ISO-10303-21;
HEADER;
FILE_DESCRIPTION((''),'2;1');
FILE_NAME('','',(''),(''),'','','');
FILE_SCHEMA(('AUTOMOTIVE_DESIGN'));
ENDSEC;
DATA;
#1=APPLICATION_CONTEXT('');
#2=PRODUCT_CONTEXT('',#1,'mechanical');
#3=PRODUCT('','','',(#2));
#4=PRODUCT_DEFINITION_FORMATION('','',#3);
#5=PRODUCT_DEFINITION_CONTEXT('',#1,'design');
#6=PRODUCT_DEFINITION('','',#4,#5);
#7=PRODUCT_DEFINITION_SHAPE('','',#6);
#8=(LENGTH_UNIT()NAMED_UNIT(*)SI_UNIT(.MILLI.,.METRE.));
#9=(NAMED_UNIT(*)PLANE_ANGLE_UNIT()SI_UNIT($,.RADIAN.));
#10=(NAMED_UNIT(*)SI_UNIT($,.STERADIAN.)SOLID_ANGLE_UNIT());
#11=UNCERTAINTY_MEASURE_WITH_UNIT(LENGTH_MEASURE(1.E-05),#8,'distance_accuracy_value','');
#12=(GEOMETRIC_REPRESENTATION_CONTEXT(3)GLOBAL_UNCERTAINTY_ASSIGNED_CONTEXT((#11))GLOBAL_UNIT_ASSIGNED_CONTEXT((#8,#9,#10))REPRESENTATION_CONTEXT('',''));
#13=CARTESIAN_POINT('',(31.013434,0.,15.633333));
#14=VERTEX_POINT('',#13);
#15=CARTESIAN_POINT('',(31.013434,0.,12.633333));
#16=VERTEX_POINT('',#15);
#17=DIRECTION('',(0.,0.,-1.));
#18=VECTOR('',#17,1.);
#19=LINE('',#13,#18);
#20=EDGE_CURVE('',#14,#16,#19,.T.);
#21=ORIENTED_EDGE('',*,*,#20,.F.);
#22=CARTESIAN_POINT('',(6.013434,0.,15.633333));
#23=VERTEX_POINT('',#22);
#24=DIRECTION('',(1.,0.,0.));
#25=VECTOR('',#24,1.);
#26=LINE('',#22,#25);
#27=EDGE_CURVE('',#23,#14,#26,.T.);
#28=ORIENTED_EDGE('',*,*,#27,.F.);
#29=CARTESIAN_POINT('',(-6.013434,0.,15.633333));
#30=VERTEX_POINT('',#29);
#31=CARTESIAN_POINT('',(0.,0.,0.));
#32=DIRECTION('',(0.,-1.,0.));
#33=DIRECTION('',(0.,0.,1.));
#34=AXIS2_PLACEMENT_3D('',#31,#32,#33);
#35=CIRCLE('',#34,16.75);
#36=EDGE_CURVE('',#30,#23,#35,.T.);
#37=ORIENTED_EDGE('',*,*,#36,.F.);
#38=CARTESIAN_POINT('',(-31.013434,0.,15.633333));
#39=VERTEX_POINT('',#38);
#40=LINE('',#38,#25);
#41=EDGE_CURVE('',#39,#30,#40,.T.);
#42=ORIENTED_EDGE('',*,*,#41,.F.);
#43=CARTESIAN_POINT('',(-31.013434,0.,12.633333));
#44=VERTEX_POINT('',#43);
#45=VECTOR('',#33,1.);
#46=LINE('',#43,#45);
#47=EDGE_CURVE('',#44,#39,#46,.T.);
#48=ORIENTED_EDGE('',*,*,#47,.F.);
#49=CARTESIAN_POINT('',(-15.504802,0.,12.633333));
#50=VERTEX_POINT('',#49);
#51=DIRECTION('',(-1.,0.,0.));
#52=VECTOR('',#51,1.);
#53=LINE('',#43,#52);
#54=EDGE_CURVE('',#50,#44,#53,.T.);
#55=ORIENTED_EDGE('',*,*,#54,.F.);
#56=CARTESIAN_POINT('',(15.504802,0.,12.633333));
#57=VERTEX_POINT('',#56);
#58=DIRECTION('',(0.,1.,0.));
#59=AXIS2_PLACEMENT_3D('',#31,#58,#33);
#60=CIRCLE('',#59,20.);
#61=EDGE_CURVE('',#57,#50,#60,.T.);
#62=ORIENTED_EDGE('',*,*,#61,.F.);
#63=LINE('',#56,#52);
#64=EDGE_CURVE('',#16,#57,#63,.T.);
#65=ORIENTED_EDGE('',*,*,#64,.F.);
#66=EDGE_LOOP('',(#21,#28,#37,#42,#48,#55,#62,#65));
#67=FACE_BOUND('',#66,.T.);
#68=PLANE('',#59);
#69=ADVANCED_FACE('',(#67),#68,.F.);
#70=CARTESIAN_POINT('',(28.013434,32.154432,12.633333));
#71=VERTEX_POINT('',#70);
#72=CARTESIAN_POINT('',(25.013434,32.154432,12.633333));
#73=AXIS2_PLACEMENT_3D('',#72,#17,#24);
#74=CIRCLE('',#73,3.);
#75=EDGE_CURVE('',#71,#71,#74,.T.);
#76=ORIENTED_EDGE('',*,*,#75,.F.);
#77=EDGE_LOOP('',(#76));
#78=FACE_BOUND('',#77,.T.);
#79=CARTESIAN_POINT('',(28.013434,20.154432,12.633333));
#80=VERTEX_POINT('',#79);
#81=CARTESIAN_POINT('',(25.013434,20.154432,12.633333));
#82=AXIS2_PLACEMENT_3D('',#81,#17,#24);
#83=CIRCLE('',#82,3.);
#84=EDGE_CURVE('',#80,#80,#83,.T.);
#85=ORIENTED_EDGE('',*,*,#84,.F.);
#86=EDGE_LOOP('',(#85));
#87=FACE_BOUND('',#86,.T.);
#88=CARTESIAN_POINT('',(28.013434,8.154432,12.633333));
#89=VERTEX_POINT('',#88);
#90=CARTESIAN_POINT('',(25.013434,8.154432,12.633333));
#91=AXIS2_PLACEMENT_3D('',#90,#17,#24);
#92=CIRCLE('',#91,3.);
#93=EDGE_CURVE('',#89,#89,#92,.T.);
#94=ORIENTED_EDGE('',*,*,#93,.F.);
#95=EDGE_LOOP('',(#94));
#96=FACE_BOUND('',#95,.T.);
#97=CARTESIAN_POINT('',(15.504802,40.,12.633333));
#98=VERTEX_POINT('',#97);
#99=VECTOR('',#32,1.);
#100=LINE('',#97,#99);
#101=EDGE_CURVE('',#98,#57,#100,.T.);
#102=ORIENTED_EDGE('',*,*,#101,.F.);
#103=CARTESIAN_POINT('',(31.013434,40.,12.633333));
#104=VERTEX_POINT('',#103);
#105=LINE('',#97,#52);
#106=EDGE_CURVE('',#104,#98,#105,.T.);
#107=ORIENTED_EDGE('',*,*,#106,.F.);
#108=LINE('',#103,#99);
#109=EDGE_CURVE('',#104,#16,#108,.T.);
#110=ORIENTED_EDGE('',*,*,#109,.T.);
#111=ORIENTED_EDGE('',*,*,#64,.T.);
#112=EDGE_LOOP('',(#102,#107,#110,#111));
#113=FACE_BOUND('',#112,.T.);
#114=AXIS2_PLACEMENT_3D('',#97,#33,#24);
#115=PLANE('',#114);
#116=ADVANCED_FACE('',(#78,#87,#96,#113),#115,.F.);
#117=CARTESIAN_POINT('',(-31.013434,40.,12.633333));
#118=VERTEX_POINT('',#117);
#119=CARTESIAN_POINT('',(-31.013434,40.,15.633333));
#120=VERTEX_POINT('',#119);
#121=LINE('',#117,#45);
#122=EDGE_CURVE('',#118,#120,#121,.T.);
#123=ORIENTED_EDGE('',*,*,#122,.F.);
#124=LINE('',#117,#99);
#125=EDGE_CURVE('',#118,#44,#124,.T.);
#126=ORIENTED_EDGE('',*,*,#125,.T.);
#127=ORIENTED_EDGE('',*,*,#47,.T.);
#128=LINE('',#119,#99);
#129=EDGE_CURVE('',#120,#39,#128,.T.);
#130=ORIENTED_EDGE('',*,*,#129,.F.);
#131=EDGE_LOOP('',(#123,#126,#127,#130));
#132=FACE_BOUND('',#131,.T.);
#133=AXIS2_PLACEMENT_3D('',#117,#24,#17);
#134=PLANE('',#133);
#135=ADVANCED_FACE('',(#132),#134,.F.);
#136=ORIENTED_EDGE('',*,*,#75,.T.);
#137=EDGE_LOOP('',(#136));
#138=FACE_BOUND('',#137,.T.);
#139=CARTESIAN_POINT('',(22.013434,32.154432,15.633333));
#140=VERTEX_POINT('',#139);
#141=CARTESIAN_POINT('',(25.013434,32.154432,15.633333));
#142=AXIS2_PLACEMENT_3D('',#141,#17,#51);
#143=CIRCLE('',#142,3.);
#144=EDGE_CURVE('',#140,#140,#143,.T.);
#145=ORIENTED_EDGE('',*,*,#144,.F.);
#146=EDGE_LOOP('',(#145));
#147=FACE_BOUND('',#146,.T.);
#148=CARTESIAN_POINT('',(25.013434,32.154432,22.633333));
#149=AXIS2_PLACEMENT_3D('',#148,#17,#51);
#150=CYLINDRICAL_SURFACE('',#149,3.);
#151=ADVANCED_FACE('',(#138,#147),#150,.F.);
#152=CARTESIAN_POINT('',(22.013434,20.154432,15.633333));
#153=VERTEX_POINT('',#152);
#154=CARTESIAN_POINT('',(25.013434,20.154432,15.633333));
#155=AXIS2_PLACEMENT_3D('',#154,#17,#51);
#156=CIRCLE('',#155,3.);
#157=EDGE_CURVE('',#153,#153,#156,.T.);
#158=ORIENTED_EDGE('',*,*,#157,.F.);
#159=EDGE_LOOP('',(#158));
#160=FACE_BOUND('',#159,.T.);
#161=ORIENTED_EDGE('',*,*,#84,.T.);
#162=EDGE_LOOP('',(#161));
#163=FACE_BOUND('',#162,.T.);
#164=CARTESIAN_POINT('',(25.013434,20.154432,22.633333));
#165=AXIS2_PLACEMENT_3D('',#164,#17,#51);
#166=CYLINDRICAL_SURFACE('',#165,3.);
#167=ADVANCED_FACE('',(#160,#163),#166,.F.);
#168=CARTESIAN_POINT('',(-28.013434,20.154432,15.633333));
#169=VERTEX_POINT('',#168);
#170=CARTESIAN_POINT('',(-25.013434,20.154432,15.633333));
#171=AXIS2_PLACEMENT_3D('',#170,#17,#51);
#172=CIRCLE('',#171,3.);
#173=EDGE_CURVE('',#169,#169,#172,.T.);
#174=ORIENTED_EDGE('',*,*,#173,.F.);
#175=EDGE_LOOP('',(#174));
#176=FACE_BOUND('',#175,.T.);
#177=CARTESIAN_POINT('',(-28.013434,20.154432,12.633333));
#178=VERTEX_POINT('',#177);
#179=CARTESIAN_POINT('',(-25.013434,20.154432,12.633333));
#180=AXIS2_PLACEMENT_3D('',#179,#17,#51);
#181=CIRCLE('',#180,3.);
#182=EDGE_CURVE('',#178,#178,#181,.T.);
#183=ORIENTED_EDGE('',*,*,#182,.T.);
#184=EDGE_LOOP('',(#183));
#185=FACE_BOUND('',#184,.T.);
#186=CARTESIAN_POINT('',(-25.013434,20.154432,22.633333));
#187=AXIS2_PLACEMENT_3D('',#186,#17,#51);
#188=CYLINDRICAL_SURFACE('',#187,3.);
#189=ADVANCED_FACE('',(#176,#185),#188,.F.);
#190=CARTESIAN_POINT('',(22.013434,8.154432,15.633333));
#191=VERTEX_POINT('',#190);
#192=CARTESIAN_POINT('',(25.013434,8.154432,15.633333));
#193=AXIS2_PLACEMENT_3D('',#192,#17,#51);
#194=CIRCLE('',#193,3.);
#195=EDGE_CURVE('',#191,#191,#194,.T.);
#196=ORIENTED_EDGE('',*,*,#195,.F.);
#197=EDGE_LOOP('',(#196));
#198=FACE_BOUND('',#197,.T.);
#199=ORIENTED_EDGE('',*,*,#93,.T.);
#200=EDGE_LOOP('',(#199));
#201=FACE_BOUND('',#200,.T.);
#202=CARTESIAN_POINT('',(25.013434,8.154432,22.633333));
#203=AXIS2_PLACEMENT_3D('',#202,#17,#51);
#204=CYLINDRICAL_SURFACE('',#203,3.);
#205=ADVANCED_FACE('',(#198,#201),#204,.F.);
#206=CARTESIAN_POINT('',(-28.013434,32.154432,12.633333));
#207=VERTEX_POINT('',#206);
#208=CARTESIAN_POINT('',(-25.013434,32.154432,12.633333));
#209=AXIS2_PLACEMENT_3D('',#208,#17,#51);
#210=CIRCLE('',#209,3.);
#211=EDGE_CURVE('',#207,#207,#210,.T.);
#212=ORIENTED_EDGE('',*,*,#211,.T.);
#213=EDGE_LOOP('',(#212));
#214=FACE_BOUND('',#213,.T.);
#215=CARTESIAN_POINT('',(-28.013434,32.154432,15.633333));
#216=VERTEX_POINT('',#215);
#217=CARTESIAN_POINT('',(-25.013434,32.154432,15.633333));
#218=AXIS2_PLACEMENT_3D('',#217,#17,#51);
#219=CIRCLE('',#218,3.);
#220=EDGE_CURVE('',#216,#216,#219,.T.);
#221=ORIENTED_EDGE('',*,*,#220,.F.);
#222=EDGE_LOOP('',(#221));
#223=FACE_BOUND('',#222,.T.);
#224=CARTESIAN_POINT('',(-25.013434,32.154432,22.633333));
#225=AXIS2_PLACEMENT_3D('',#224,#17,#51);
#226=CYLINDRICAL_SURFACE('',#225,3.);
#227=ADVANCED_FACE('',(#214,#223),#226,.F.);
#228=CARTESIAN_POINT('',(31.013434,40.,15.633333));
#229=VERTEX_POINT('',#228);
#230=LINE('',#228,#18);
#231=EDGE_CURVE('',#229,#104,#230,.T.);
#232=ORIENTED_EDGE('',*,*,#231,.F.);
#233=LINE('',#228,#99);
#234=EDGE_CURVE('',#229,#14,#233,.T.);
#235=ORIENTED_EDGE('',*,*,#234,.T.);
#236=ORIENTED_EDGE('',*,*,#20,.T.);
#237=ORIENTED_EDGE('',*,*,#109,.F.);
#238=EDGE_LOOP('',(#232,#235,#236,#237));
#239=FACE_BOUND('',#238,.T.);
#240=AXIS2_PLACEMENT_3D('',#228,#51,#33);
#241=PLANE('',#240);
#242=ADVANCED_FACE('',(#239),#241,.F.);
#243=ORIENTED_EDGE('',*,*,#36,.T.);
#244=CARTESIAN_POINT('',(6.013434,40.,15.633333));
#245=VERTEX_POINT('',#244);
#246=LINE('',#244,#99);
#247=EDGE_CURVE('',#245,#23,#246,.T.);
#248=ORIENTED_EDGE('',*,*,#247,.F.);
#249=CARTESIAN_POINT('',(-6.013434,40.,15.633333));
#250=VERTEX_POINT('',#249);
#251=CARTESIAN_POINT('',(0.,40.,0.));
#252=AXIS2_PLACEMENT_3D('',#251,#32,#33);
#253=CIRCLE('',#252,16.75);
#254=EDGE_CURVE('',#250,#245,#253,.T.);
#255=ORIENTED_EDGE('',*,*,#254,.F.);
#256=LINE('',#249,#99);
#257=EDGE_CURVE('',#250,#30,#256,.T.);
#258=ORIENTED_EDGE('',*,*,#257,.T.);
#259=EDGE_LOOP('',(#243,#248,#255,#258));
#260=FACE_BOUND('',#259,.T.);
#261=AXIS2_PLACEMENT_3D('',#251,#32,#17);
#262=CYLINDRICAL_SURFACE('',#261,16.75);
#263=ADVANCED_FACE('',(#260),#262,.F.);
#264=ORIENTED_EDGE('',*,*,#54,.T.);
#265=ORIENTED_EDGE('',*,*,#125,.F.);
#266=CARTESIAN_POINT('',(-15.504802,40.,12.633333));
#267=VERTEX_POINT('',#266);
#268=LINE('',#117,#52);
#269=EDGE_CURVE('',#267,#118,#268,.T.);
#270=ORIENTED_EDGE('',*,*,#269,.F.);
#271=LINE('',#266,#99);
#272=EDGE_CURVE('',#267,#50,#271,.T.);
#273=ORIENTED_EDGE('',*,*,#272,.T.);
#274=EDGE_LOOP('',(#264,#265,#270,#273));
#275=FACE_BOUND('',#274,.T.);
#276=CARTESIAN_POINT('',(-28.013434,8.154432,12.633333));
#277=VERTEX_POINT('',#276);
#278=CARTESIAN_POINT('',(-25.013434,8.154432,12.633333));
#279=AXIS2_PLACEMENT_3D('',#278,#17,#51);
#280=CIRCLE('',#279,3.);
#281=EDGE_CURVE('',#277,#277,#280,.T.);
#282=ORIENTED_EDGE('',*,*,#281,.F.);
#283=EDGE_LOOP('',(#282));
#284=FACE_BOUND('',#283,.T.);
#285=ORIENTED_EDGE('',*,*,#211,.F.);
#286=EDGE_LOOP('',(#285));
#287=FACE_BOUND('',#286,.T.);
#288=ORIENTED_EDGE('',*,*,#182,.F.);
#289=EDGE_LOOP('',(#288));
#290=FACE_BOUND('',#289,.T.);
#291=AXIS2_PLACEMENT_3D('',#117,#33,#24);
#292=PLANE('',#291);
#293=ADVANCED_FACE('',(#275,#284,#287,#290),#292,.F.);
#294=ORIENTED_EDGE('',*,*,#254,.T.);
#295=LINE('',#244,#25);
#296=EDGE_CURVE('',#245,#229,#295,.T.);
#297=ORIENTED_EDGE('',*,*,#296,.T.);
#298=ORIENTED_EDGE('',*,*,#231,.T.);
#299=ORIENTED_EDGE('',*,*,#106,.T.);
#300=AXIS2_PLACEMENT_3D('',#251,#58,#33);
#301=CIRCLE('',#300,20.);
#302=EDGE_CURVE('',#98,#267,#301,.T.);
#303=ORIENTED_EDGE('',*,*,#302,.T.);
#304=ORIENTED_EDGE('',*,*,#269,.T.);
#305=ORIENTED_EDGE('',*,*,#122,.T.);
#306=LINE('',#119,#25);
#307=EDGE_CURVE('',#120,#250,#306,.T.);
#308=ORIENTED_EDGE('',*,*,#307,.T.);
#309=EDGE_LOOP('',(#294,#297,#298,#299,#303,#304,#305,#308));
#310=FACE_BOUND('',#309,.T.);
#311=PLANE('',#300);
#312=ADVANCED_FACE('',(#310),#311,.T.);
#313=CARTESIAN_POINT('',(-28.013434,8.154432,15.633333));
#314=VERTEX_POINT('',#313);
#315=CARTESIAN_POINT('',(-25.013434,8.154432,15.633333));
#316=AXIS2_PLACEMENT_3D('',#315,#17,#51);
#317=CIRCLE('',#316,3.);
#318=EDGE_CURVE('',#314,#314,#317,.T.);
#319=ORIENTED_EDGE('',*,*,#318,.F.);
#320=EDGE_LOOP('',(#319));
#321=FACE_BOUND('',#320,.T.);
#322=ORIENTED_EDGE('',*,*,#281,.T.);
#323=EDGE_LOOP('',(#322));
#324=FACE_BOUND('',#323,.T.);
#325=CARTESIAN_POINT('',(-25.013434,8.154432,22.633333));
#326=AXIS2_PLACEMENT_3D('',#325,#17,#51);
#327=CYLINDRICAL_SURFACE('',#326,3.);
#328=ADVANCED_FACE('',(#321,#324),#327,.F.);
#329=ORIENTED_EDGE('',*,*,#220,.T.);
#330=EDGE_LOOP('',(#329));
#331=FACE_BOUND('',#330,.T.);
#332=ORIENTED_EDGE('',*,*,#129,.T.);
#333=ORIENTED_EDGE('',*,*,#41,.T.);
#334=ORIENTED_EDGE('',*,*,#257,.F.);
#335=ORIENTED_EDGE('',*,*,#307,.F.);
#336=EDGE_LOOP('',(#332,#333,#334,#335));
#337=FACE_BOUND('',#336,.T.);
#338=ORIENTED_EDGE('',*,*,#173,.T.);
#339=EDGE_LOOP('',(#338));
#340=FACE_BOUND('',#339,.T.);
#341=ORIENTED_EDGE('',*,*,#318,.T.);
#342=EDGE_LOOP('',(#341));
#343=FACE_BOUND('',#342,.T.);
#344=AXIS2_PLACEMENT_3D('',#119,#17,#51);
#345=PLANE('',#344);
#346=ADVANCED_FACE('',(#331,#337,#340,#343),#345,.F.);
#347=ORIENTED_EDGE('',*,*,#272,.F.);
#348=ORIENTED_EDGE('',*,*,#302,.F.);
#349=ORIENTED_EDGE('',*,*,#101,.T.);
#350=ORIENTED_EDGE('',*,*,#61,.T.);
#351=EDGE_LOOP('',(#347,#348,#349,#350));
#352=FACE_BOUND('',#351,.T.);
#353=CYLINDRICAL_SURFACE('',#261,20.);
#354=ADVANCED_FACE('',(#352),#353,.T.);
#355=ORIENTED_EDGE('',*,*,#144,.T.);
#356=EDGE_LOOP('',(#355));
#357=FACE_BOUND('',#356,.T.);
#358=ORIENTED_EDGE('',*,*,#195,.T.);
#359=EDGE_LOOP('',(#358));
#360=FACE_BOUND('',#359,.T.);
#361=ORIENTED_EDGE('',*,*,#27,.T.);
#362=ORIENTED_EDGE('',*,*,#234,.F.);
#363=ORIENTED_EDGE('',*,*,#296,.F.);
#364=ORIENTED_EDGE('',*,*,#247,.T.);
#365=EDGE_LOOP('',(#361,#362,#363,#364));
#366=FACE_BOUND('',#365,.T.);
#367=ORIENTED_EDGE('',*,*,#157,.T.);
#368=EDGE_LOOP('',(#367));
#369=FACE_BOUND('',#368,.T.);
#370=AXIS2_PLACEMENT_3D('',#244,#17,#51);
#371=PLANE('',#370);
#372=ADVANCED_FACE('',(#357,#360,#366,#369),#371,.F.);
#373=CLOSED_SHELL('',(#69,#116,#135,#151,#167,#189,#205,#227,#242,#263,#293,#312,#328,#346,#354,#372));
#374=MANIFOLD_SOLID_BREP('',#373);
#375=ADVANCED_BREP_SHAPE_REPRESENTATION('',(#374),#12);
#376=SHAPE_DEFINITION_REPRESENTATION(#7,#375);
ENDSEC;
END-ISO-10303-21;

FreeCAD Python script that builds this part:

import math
import FreeCAD as App
import Part
import Sketcher

V = App.Vector
Q = App.Units.Quantity

doc = App.newDocument("Part")
body = doc.addObject("PartDesign::Body", "Body")

# Sketch on XZ plane
sketch1 = body.newObject("Sketcher::SketchObject", "Sketch")
sketch1.AttachmentSupport = (doc.getObject("XZ_Plane"), [""])
sketch1.MapMode = "FlatFace"
sketch1.addGeometry([
    Part.LineSegment(V(6, 15.6, 0), V(31, 15.6, 0)),  # 0
    Part.LineSegment(V(31, 15.6, 0), V(31, 12.6, 0)),  # 1
    Part.LineSegment(V(31, 12.6, 0), V(15.5, 12.6, 0)),  # 2
    Part.ArcOfCircle(Part.Circle(V(0, 0, 0), V(0, 0, 1), 20), math.radians(141), math.radians(399)),  # 3
    Part.LineSegment(V(-15.5, 12.6, 0), V(-31, 12.6, 0)),  # 4
    Part.LineSegment(V(-31, 12.6, 0), V(-31, 15.6, 0)),  # 5
    Part.LineSegment(V(-31, 15.6, 0), V(-6, 15.6, 0)),  # 6
    Part.ArcOfCircle(Part.Circle(V(0, 0, 0), V(0, 0, 1), 16.8), math.radians(111), math.radians(429)),  # 7
], False)
sketch1.addConstraint([
    Sketcher.Constraint("Coincident", 0, 2, 1, 1),
    Sketcher.Constraint("Coincident", 1, 2, 2, 1),
    Sketcher.Constraint("Coincident", 2, 2, 3, 2),
    Sketcher.Constraint("Coincident", 3, 1, 4, 1),
    Sketcher.Constraint("Coincident", 4, 2, 5, 1),
    Sketcher.Constraint("Coincident", 5, 2, 6, 1),
    Sketcher.Constraint("Coincident", 6, 2, 7, 1),
    Sketcher.Constraint("Coincident", 7, 2, 0, 1),
    Sketcher.Constraint("Horizontal", 0),
    Sketcher.Constraint("Vertical", 1),
    Sketcher.Constraint("Horizontal", 2),
    Sketcher.Constraint("Horizontal", 4),
    Sketcher.Constraint("Vertical", 5),
    Sketcher.Constraint("Horizontal", 6),
    Sketcher.Constraint("Coincident", 3, 3, -1, 1),
    Sketcher.Constraint("Coincident", 7, 3, -1, 1),
    Sketcher.Constraint("Symmetric", 1, 2, 4, 2, -2),
    Sketcher.Constraint("Horizontal", 0, 2, 5, 2),
    Sketcher.Constraint("Radius", 3, Q("20 mm")),
    Sketcher.Constraint("DistanceX", 0, 1, 0, 2, Q("25 mm")),
    Sketcher.Constraint("DistanceY", 1, 2, 1, 1, Q("3 mm")),
    Sketcher.Constraint("Radius", 7, Q("16.75 mm")),
    Sketcher.Constraint("DistanceX", 2, 2, 2, 1, Q("15.508632 mm")),
])
pad1 = body.newObject("PartDesign::Pad", "Pad")
pad1.Profile = sketch1
pad1.Length = 40
pad1.Reversed = True

# Sketch on XY plane
sketch2 = body.newObject("Sketcher::SketchObject", "Sketch001")
sketch2.AttachmentSupport = (doc.getObject("XY_Plane"), [""])
sketch2.MapMode = "FlatFace"
sketch2.AttachmentOffset = App.Placement(V(0, 0, 12.633333), App.Rotation())
sketch2.addGeometry([
    Part.Circle(V(-25, 8.2, 0), V(0, 0, 1), 3),  # 0
    Part.Circle(V(-25, 20.2, 0), V(0, 0, 1), 3),  # 1
    Part.Circle(V(-25, 32.2, 0), V(0, 0, 1), 3),  # 2
    Part.Circle(V(25, 32.2, 0), V(0, 0, 1), 3),  # 3
    Part.Circle(V(25, 8.2, 0), V(0, 0, 1), 3),  # 4
    Part.Circle(V(25, 20.2, 0), V(0, 0, 1), 3),  # 5
], False)
sketch2.addConstraint([
    Sketcher.Constraint("Equal", 0, 1),
    Sketcher.Constraint("Equal", 1, 2),
    Sketcher.Constraint("Equal", 2, 3),
    Sketcher.Constraint("Equal", 3, 4),
    Sketcher.Constraint("Equal", 4, 5),
    Sketcher.Constraint("Symmetric", 2, 3, 3, 3, -2),
    Sketcher.Constraint("Symmetric", 0, 3, 4, 3, -2),
    Sketcher.Constraint("Symmetric", 1, 3, 5, 3, -2),
    Sketcher.Constraint("Vertical", 0, 3, 1, 3),
    Sketcher.Constraint("Vertical", 1, 3, 2, 3),
    Sketcher.Constraint("Diameter", 0, Q("6 mm")),
    Sketcher.Constraint("DistanceY", 0, 3, 1, 3, Q("12 mm")),
    Sketcher.Constraint("DistanceY", 1, 3, 2, 3, Q("12 mm")),
    Sketcher.Constraint("DistanceY", -1, 1, 0, 3, Q("8.154432 mm")),
    Sketcher.Constraint("DistanceX", 2, 3, 3, 3, Q("50.026868 mm")),
])
pocket1 = body.newObject("PartDesign::Pocket", "Pocket")
pocket1.Profile = sketch2
pocket1.Length = 10
pocket1.Reversed = True

doc.recompute()
